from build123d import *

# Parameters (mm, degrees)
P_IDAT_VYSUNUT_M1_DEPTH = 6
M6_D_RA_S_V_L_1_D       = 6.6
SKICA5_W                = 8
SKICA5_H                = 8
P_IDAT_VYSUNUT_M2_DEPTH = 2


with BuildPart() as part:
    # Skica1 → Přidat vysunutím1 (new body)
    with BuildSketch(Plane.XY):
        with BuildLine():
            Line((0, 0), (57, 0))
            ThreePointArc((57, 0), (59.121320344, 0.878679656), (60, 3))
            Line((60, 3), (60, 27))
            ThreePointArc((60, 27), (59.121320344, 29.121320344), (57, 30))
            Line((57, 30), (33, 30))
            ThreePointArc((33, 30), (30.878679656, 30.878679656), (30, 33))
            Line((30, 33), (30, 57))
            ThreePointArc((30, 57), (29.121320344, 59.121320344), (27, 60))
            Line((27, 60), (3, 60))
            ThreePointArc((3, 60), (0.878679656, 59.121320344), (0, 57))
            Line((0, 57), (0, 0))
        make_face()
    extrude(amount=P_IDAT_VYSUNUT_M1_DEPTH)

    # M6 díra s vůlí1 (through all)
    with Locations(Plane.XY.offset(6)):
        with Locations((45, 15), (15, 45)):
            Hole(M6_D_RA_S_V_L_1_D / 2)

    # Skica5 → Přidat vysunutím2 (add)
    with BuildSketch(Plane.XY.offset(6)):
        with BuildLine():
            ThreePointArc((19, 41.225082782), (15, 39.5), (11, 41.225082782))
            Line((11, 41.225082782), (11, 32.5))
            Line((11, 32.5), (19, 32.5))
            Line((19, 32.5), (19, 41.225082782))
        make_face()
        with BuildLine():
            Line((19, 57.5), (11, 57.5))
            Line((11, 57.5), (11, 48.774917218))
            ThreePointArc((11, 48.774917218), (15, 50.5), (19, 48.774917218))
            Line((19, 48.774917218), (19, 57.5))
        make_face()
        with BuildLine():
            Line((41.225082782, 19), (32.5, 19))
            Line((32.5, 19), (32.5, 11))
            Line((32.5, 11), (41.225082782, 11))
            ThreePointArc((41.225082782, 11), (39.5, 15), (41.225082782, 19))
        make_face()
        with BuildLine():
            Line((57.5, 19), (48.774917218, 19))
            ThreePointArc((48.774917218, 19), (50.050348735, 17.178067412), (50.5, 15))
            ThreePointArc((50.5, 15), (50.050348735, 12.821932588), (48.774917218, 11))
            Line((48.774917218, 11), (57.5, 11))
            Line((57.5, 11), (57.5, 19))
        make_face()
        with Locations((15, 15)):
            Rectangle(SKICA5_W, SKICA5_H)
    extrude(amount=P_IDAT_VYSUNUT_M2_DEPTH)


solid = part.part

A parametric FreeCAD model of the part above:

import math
import FreeCAD as App
import Part
import Sketcher

V = App.Vector
Q = App.Units.Quantity


def add_polygon(sketch, points):
    """Adds a closed chain of lines whose ends are joined by coincident constraints."""
    first, n = sketch.GeometryCount, len(points)
    for a, b in zip(points, points[1:] + points[:1]):
        sketch.addGeometry(Part.LineSegment(App.Vector(*a, 0), App.Vector(*b, 0)), False)
    for i in range(n):
        sketch.addConstraint(Sketcher.Constraint("Coincident", first + i, 2, first + (i + 1) % n, 1))

doc = App.newDocument("Part")
params = doc.addObject("Spreadsheet::Sheet", "Params")
for row, (alias, value) in enumerate([
    ("sketch1_radius", "3 mm"),
    ("sketch1_width", "57 mm"),
    ("pad1_length", "6 mm"),
    ("sketch2_diameter", "6.6 mm"),
    ("hole_diameter", "6.6 mm"),
    ("sketch3_radius", "5.5 mm"),
    ("sketch3_width", "8 mm"),
    ("pad2_length", "2 mm"),
], start=1):
    params.set(f"A{row}", alias)
    params.set(f"B{row}", "=" + value)
    params.setAlias(f"B{row}", alias)

body = doc.addObject("PartDesign::Body", "Body")

sketch1 = body.newObject("Sketcher::SketchObject", "Sketch")
sketch1.AttachmentSupport = (doc.getObject("XY_Plane"), [""])
sketch1.MapMode = "FlatFace"
sketch1.addGeometry([
    Part.LineSegment(V(0, 0, 0), V(57, 0, 0)),
    Part.ArcOfCircle(Part.Circle(V(57, 3, 0), V(0, 0, 1), 3), math.radians(-90), math.radians(0)),
    Part.LineSegment(V(60, 3, 0), V(60, 27, 0)),
    Part.ArcOfCircle(Part.Circle(V(57, 27, 0), V(0, 0, 1), 3), math.radians(0), math.radians(90)),
    Part.LineSegment(V(57, 30, 0), V(33, 30, 0)),
    Part.ArcOfCircle(Part.Circle(V(33, 33, 0), V(0, 0, 1), 3), math.radians(180), math.radians(270)),
    Part.LineSegment(V(30, 33, 0), V(30, 57, 0)),
    Part.ArcOfCircle(Part.Circle(V(27, 57, 0), V(0, 0, 1), 3), math.radians(0), math.radians(90)),
    Part.LineSegment(V(27, 60, 0), V(3, 60, 0)),
    Part.ArcOfCircle(Part.Circle(V(3, 57, 0), V(0, 0, 1), 3), math.radians(90), math.radians(180)),
    Part.LineSegment(V(0, 57, 0), V(0, 0, 0)),
], False)
sketch1.addConstraint([
    Sketcher.Constraint("Tangent", 0, 2, 1, 1),
    Sketcher.Constraint("Tangent", 1, 2, 2, 1),
    Sketcher.Constraint("Tangent", 2, 2, 3, 1),
    Sketcher.Constraint("Tangent", 3, 2, 4, 1),
    Sketcher.Constraint("Tangent", 4, 2, 5, 2),
    Sketcher.Constraint("Tangent", 5, 1, 6, 1),
    Sketcher.Constraint("Tangent", 6, 2, 7, 1),
    Sketcher.Constraint("Tangent", 7, 2, 8, 1),
    Sketcher.Constraint("Tangent", 8, 2, 9, 1),
    Sketcher.Constraint("Tangent", 9, 2, 10, 1),
    Sketcher.Constraint("Coincident", 10, 2, 0, 1),
    Sketcher.Constraint("Horizontal", 0),
    Sketcher.Constraint("Vertical", 2),
    Sketcher.Constraint("Horizontal", 4),
    Sketcher.Constraint("Vertical", 6),
    Sketcher.Constraint("Horizontal", 8),
    Sketcher.Constraint("Vertical", 10),
    Sketcher.Constraint("Coincident", 10, 2, -1, 1),
    Sketcher.Constraint("Equal", 1, 3),
    Sketcher.Constraint("Equal", 3, 5),
    Sketcher.Constraint("Equal", 5, 7),
    Sketcher.Constraint("Equal", 7, 9),
    Sketcher.Constraint("Equal", 4, 8),
    Sketcher.Constraint("Equal", 8, 2),
    Sketcher.Constraint("Equal", 2, 6),
    Sketcher.Constraint("Radius", 1, Q("3 mm")),
    Sketcher.Constraint("DistanceX", 0, 1, 0, 2, Q("57 mm")),
])
sketch1.setExpression("Constraints[25]", "Params.sketch1_radius")
sketch1.setExpression("Constraints[26]", "Params.sketch1_width")
pad1 = body.newObject("PartDesign::Pad", "Pad")
pad1.Profile = sketch1
pad1.setExpression("Length", "Params.pad1_length")

sketch2 = body.newObject("Sketcher::SketchObject", "Sketch001")
sketch2.AttachmentSupport = (doc.getObject("XY_Plane"), [""])
sketch2.MapMode = "FlatFace"
sketch2.AttachmentOffset = App.Placement(V(0, 0, 6), App.Rotation())
sketch2.addGeometry([
    Part.Circle(V(45, 15, 0), V(0, 0, 1), 3.3),
    Part.Circle(V(15, 45, 0), V(0, 0, 1), 3.3),
], False)
sketch2.addConstraint([
    Sketcher.Constraint("Equal", 0, 1),
    Sketcher.Constraint("Diameter", 0, Q("6.6 mm")),
    Sketcher.Constraint("DistanceX", -1, 1, 0, 3, Q("45 mm")),
    Sketcher.Constraint("DistanceY", -1, 1, 0, 3, Q("15 mm")),
    Sketcher.Constraint("DistanceX", -1, 1, 1, 3, Q("15 mm")),
    Sketcher.Constraint("DistanceY", -1, 1, 1, 3, Q("45 mm")),
])
sketch2.setExpression("Constraints[1]", "Params.sketch2_diameter")
doc.recompute()
hole = body.newObject("PartDesign::Hole", "Hole")
hole.Profile = sketch2
hole.ThreadType = "None"
hole.setExpression("Diameter", "Params.hole_diameter")
hole.DepthType = "ThroughAll"

sketch3 = body.newObject("Sketcher::SketchObject", "Sketch002")
sketch3.AttachmentSupport = (doc.getObject("XY_Plane"), [""])
sketch3.MapMode = "FlatFace"
sketch3.AttachmentOffset = App.Placement(V(0, 0, 6), App.Rotation())
sketch3.addGeometry(Part.ArcOfCircle(Part.Circle(V(15, 45, 0), V(0, 0, 1), 5.5), math.radians(-137), math.radians(-43)), False)
sketch3.addGeometry(Part.LineSegment(V(11, 41.2, 0), V(11, 32.5, 0)), False)
sketch3.addGeometry(Part.LineSegment(V(11, 32.5, 0), V(19, 32.5, 0)), False)
sketch3.addGeometry(Part.LineSegment(V(19, 32.5, 0), V(19, 41.2, 0)), False)
sketch3.addGeometry(Part.LineSegment(V(19, 57.5, 0), V(11, 57.5, 0)), False)
sketch3.addGeometry(Part.LineSegment(V(11, 57.5, 0), V(11, 48.8, 0)), False)
sketch3.addGeometry(Part.ArcOfCircle(Part.Circle(V(15, 45, 0), V(0, 0, 1), 5.5), math.radians(43), math.radians(137)), False)
sketch3.addGeometry(Part.LineSegment(V(19, 48.8, 0), V(19, 57.5, 0)), False)
sketch3.addGeometry(Part.LineSegment(V(41.2, 19, 0), V(32.5, 19, 0)), False)
sketch3.addGeometry(Part.LineSegment(V(32.5, 19, 0), V(32.5, 11, 0)), False)
sketch3.addGeometry(Part.LineSegment(V(32.5, 11, 0), V(41.2, 11, 0)), False)
sketch3.addGeometry(Part.ArcOfCircle(Part.Circle(V(45, 15, 0), V(0, 0, 1), 5.5), math.radians(133), math.radians(227)), False)
sketch3.addGeometry(Part.LineSegment(V(57.5, 19, 0), V(48.8, 19, 0)), False)
sketch3.addGeometry(Part.ArcOfCircle(Part.Circle(V(45, 15, 0), V(0, 0, 1), 5.5), math.radians(0), math.radians(47)), False)
sketch3.addGeometry(Part.ArcOfCircle(Part.Circle(V(45, 15, 0), V(0, 0, 1), 5.5), math.radians(-47), math.radians(0)), False)
sketch3.addGeometry(Part.LineSegment(V(48.8, 11, 0), V(57.5, 11, 0)), False)
sketch3.addGeometry(Part.LineSegment(V(57.5, 11, 0), V(57.5, 19, 0)), False)
add_polygon(sketch3, [(11, 19), (11, 11), (19, 11), (19, 19)])
sketch3.addConstraint([
    Sketcher.Constraint("Coincident", 0, 1, 1, 1),
    Sketcher.Constraint("Coincident", 1, 2, 2, 1),
    Sketcher.Constraint("Coincident", 2, 2, 3, 1),
    Sketcher.Constraint("Coincident", 3, 2, 0, 2),
    Sketcher.Constraint("Coincident", 4, 2, 5, 1),
    Sketcher.Constraint("Coincident", 5, 2, 6, 2),
    Sketcher.Constraint("Coincident", 6, 1, 7, 1),
    Sketcher.Constraint("Coincident", 7, 2, 4, 1),
    Sketcher.Constraint("Coincident", 8, 2, 9, 1),
    Sketcher.Constraint("Coincident", 9, 2, 10, 1),
    Sketcher.Constraint("Coincident", 10, 2, 11, 2),
    Sketcher.Constraint("Coincident", 11, 1, 8, 1),
    Sketcher.Constraint("Coincident", 12, 2, 13, 2),
    Sketcher.Constraint("Tangent", 13, 1, 14, 2),
    Sketcher.Constraint("Coincident", 14, 1, 15, 1),
    Sketcher.Constraint("Coincident", 15, 2, 16, 1),
    Sketcher.Constraint("Coincident", 16, 2, 12, 1),
    Sketcher.Constraint("Vertical", 1),
    Sketcher.Constraint("Horizontal", 2),
    Sketcher.Constraint("Vertical", 3),
    Sketcher.Constraint("Horizontal", 4),
    Sketcher.Constraint("Vertical", 5),
    Sketcher.Constraint("Vertical", 7),
    Sketcher.Constraint("Horizontal", 8),
    Sketcher.Constraint("Vertical", 9),
    Sketcher.Constraint("Horizontal", 10),
    Sketcher.Constraint("Horizontal", 12),
    Sketcher.Constraint("Horizontal", 15),
    Sketcher.Constraint("Vertical", 16),
    Sketcher.Constraint("Vertical", 17),
    Sketcher.Constraint("Horizontal", 18),
    Sketcher.Constraint("Vertical", 19),
    Sketcher.Constraint("Horizontal", 20),
    Sketcher.Constraint("Coincident", 6, 3, 0, 3),
    Sketcher.Constraint("Coincident", 13, 3, 11, 3),
    Sketcher.Constraint("Equal", 0, 6),
    Sketcher.Constraint("Equal", 6, 11),
    Sketcher.Constraint("Equal", 11, 13),
    Sketcher.Constraint("Equal", 13, 14),
    Sketcher.Constraint("Horizontal", 0, 1, 3, 2),
    Sketcher.Constraint("Horizontal", 5, 2, 6, 1),
    Sketcher.Constraint("Horizontal", 11, 1, 12, 2),
    Sketcher.Constraint("Horizontal", 14, 3, 13, 1),
    Sketcher.Constraint("Horizontal", 10, 2, 14, 1),
    Sketcher.Constraint("Horizontal", 15, 2, 17, 2),
    Sketcher.Constraint("Horizontal", 16, 2, 19, 2),
    Sketcher.Constraint("Vertical", 1, 2, 4, 2),
    Sketcher.Constraint("Vertical", 10, 2, 11, 1),
    Sketcher.Constraint("Vertical", 5, 2, 17, 2),
    Sketcher.Constraint("Vertical", 7, 2, 18, 2),
    Sketcher.Constraint("Equal", 10, 12),
    Sketcher.Constraint("Equal", 15, 1),
    Sketcher.Constraint("Equal", 3, 5),
    Sketcher.Constraint("Equal", 20, 9),
    Sketcher.Constraint("Radius", 0, Q("5.5 mm")),
    Sketcher.Constraint("DistanceX", 2, 1, 2, 2, Q("8 mm")),
    Sketcher.Constraint("DistanceX", -1, 1, 0, 3, Q("15 mm")),
    Sketcher.Constraint("DistanceY", -1, 1, 0, 3, Q("45 mm")),
    Sketcher.Constraint("DistanceX", -1, 1, 11, 3, Q("45 mm")),
    Sketcher.Constraint("DistanceY", -1, 1, 11, 3, Q("15 mm")),
    Sketcher.Constraint("DistanceY", 1, 2, 4, 2, Q("25 mm")),
])
sketch3.setExpression("Constraints[58]", "Params.sketch3_radius")
sketch3.setExpression("Constraints[59]", "Params.sketch3_width")
pad2 = body.newObject("PartDesign::Pad", "Pad001")
pad2.Profile = sketch3
pad2.setExpression("Length", "Params.pad2_length")

doc.recompute()
